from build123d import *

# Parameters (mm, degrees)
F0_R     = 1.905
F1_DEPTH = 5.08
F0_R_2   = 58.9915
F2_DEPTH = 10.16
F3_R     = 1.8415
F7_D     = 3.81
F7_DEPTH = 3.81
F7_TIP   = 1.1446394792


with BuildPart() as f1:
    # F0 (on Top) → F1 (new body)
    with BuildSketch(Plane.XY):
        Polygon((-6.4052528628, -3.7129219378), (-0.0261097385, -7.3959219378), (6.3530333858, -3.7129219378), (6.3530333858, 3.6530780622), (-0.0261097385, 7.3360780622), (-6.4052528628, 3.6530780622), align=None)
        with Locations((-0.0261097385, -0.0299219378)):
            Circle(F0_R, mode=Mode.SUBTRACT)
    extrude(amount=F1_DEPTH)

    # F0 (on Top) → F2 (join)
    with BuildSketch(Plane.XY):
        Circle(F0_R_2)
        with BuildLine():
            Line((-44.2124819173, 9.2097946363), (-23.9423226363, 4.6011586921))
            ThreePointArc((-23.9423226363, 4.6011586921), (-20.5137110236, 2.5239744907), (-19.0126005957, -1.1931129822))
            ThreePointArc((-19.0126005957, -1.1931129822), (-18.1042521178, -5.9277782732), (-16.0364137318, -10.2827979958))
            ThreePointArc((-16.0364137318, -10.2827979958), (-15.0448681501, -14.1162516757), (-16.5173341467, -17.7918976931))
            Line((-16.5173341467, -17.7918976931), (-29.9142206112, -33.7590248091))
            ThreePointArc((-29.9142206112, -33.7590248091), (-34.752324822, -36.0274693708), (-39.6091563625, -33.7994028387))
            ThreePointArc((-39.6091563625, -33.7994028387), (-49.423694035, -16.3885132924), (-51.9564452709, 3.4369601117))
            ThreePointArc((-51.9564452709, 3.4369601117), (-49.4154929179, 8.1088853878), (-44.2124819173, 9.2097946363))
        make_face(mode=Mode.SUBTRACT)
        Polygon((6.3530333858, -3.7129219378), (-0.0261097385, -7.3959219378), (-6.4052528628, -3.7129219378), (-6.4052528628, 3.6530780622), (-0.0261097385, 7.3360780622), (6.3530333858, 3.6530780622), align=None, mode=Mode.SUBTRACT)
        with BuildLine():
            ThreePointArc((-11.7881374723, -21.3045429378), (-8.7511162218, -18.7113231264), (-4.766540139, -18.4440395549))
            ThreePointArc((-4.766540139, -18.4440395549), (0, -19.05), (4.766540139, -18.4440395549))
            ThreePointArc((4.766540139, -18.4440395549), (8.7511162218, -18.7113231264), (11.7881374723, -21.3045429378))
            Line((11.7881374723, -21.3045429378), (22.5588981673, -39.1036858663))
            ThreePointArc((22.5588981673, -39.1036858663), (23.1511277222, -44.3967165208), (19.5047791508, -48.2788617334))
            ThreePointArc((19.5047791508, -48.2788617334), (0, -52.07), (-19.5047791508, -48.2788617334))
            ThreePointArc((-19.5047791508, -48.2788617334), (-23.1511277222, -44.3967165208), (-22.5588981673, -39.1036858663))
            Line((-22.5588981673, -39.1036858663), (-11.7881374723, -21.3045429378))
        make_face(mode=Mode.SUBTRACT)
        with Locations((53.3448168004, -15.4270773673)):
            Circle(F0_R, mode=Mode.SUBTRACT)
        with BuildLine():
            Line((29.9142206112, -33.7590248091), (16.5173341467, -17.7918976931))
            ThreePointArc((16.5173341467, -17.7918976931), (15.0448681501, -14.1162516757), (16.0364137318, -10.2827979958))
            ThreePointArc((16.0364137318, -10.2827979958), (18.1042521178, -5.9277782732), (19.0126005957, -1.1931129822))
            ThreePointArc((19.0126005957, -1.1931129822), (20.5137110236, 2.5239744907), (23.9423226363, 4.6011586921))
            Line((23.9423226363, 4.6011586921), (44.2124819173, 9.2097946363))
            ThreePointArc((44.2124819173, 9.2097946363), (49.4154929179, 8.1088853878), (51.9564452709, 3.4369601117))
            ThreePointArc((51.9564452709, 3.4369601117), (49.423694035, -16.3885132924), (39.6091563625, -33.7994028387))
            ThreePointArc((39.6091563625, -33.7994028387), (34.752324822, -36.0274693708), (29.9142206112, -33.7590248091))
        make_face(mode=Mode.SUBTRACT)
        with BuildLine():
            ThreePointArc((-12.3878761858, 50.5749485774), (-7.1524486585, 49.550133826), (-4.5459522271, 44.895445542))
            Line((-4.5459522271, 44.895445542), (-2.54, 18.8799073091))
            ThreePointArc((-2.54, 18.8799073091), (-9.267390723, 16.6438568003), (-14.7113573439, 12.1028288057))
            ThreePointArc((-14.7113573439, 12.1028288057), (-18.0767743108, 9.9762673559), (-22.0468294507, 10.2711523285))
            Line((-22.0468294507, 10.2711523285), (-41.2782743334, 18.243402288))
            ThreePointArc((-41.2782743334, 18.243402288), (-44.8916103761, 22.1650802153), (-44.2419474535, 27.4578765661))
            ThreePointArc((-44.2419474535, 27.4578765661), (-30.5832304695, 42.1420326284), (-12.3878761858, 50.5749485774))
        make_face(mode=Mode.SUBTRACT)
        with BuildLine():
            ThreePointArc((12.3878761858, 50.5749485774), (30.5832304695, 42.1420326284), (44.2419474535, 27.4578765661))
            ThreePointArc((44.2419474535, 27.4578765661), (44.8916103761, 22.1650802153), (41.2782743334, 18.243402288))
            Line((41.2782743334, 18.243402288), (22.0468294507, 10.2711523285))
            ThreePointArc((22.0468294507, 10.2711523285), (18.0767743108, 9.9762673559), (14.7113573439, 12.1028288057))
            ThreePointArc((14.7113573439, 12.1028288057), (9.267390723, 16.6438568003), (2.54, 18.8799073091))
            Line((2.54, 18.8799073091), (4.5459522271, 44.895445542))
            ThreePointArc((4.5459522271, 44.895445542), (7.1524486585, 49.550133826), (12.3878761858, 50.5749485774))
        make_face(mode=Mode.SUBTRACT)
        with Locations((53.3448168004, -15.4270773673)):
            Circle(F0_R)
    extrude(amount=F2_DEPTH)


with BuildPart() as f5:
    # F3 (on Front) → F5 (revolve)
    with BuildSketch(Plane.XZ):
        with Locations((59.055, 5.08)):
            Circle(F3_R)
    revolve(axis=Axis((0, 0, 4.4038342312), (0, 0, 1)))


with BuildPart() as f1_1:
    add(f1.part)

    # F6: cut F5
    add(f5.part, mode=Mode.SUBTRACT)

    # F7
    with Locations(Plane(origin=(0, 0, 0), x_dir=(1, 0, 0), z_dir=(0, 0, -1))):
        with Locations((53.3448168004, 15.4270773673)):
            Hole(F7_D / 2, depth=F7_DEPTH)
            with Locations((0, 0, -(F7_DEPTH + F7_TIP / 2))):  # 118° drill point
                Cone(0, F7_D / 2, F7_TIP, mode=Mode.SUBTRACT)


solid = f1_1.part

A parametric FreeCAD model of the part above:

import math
import FreeCAD as App
import Part
import Sketcher
Q = App.Units.Quantity


def add_polygon(sketch, points):
    """Adds a closed chain of lines whose ends are joined by coincident constraints."""
    first, n = sketch.GeometryCount, len(points)
    for a, b in zip(points, points[1:] + points[:1]):
        sketch.addGeometry(Part.LineSegment(App.Vector(*a, 0), App.Vector(*b, 0)), False)
    for i in range(n):
        sketch.addConstraint(Sketcher.Constraint("Coincident", first + i, 2, first + (i + 1) % n, 1))

doc = App.newDocument("Part")
body = doc.addObject("PartDesign::Body", "Body")

# Sketch on XY plane
sketch1 = body.newObject("Sketcher::SketchObject", "Sketch")
sketch1.AttachmentSupport = (doc.getObject("XY_Plane"), [""])
sketch1.MapMode = "FlatFace"
add_polygon(sketch1, [(-6.405253, -3.712922), (-0.02611, -7.395922), (6.353033, -3.712922), (6.353033, 3.653078), (-0.02611, 7.336078), (-6.405253, 3.653078)])  # lines 0-5
sketch1.addGeometry(Part.Circle(App.Vector(-0.02611, -0.029922, 0), App.Vector(0, 0, 1), 1.905), False)  # 6
sketch1.addConstraint([
    Sketcher.Constraint("Vertical", 2),
    Sketcher.Constraint("Vertical", 5),
    Sketcher.Constraint("Parallel", 0, 3),
    Sketcher.Constraint("Parallel", 1, 4),
    Sketcher.Constraint("Horizontal", 2, 2, 4, 2),
    Sketcher.Constraint("Horizontal", 1, 2, 5, 2),
    Sketcher.Constraint("Vertical", 6, 3, 0, 2),
    Sketcher.Constraint("Vertical", 0, 2, 3, 2),
    Sketcher.Constraint("Diameter", 6, Q("0.15 in")),
    Sketcher.Constraint("Angle", 0, Q("-30 deg")),
    Sketcher.Constraint("DistanceY", 2, 1, 2, 2, Q("0.29 in")),
    Sketcher.Constraint("Distance", 0, Q("0.29 in")),
    Sketcher.Constraint("DistanceY", 0, 2, 6, 3, Q("0.29 in")),
    Sketcher.Constraint("DistanceX", 6, 3, -1, 1, 0.02611),
    Sketcher.Constraint("DistanceY", 6, 3, -1, 1, 0.029922),
])
pad1 = body.newObject("PartDesign::Pad", "Pad")
pad1.Profile = sketch1
pad1.Length = Q("0.2 in")

# Sketch on XY plane
sketch2 = body.newObject("Sketcher::SketchObject", "Sketch001")
sketch2.AttachmentSupport = (doc.getObject("XY_Plane"), [""])
sketch2.MapMode = "FlatFace"
sketch2.addGeometry(Part.Circle(App.Vector(0, 0, 0), App.Vector(0, 0, 1), 58.9915), False)  # 0
sketch2.addGeometry(Part.LineSegment(App.Vector(-22.558898, -39.103686, 0), App.Vector(-11.788137, -21.304543, 0)), False)  # 1
sketch2.addGeometry(Part.ArcOfCircle(Part.Circle(App.Vector(-6.355387, -24.592053, 0), App.Vector(0, 0, 1), 6.35), math.radians(75.509938), math.radians(148.820691)), False)  # 2
sketch2.addGeometry(Part.ArcOfCircle(Part.Circle(App.Vector(0, 0, 0), App.Vector(0, 0, 1), 19.05), math.radians(-104.490062), math.radians(-75.509938)), False)  # 3
sketch2.addGeometry(Part.ArcOfCircle(Part.Circle(App.Vector(6.355387, -24.592053, 0), App.Vector(0, 0, 1), 6.35), math.radians(31.179309), math.radians(104.490062)), False)  # 4
sketch2.addGeometry(Part.LineSegment(App.Vector(11.788137, -21.304543, 0), App.Vector(22.558898, -39.103686, 0)), False)  # 5
sketch2.addGeometry(Part.ArcOfCircle(Part.Circle(App.Vector(17.126148, -42.391196, 0), App.Vector(0, 0, 1), 6.35), math.radians(-68.00117), math.radians(31.179309)), False)  # 6
sketch2.addGeometry(Part.ArcOfCircle(Part.Circle(App.Vector(0, 0, 0), App.Vector(0, 0, 1), 52.07), math.radians(-111.99883), math.radians(-68.00117)), False)  # 7
sketch2.addGeometry(Part.ArcOfCircle(Part.Circle(App.Vector(-17.126148, -42.391196, 0), App.Vector(0, 0, 1), 6.35), math.radians(148.820691), math.radians(248.00117)), False)  # 8
sketch2.addGeometry(Part.ArcOfCircle(Part.Circle(App.Vector(-45.620293, 3.017819, 0), App.Vector(0, 0, 1), 6.35), math.radians(77.190946), math.radians(176.215353)), False)  # 9
sketch2.addGeometry(Part.LineSegment(App.Vector(-44.212482, 9.209795, 0), App.Vector(-23.942323, 4.601159, 0)), False)  # 10
sketch2.addGeometry(Part.ArcOfCircle(Part.Circle(App.Vector(-25.350134, -1.590817, 0), App.Vector(0, 0, 1), 6.35), math.radians(3.590819), math.radians(77.190946)), False)  # 11
sketch2.addGeometry(Part.ArcOfCircle(Part.Circle(App.Vector(0, 0, 0), App.Vector(0, 0, 1), 19.05), math.radians(-176.409181), math.radians(-147.331376)), False)  # 12
sketch2.addGeometry(Part.ArcOfCircle(Part.Circle(App.Vector(-21.381885, -13.710397, 0), App.Vector(0, 0, 1), 6.35), math.radians(-39.997633), math.radians(32.668624)), False)  # 13
sketch2.addGeometry(Part.LineSegment(App.Vector(-16.517334, -17.791898, 0), App.Vector(-29.914221, -33.759025, 0)), False)  # 14
sketch2.addGeometry(Part.ArcOfCircle(Part.Circle(App.Vector(-34.778771, -29.677524, 0), App.Vector(0, 0, 1), 6.35), math.radians(-139.525112), math.radians(-39.997633)), False)  # 15
sketch2.addGeometry(Part.ArcOfCircle(Part.Circle(App.Vector(0, 0, 0), App.Vector(0, 0, 1), 52.07), math.radians(176.215353), math.radians(220.474888)), False)  # 16
sketch2.addGeometry(Part.ArcOfCircle(Part.Circle(App.Vector(34.778771, -29.677524, 0), App.Vector(0, 0, 1), 6.35), math.radians(-140.002367), math.radians(-40.474888)), False)  # 17
sketch2.addGeometry(Part.LineSegment(App.Vector(29.914221, -33.759025, 0), App.Vector(16.517334, -17.791898, 0)), False)  # 18
sketch2.addGeometry(Part.ArcOfCircle(Part.Circle(App.Vector(21.381885, -13.710397, 0), App.Vector(0, 0, 1), 6.35), math.radians(147.331376), math.radians(219.997633)), False)  # 19
sketch2.addGeometry(Part.ArcOfCircle(Part.Circle(App.Vector(0, 0, 0), App.Vector(0, 0, 1), 19.05), math.radians(-32.668624), math.radians(-3.590819)), False)  # 20
sketch2.addGeometry(Part.ArcOfCircle(Part.Circle(App.Vector(25.350134, -1.590817, 0), App.Vector(0, 0, 1), 6.35), math.radians(102.809054), math.radians(176.409181)), False)  # 21
sketch2.addGeometry(Part.LineSegment(App.Vector(23.942323, 4.601159, 0), App.Vector(44.212482, 9.209795, 0)), False)  # 22
sketch2.addGeometry(Part.ArcOfCircle(Part.Circle(App.Vector(45.620293, 3.017819, 0), App.Vector(0, 0, 1), 6.35), math.radians(3.784647), math.radians(102.809054)), False)  # 23
sketch2.addGeometry(Part.ArcOfCircle(Part.Circle(App.Vector(0, 0, 0), App.Vector(0, 0, 1), 52.07), math.radians(-40.474888), math.radians(3.784647)), False)  # 24
add_polygon(sketch2, [(6.353033, 3.653078), (6.353033, -3.712922), (-0.02611, -7.395922), (-6.405253, -3.712922), (-6.405253, 3.653078), (-0.02611, 7.336078)])  # lines 25-30
sketch2.addGeometry(Part.ArcOfCircle(Part.Circle(App.Vector(0, 0, 0), App.Vector(0, 0, 1), 52.07), math.radians(103.763109), math.radians(148.175024)), False)  # 31
sketch2.addGeometry(Part.ArcOfCircle(Part.Circle(App.Vector(-10.87716, 44.407272, 0), App.Vector(0, 0, 1), 6.35), math.radians(4.40912), math.radians(103.763109)), False)  # 32
sketch2.addGeometry(Part.LineSegment(App.Vector(-4.545952, 44.895446, 0), App.Vector(-2.54, 18.879907, 0)), False)  # 33
sketch2.addGeometry(Part.ArcOfCircle(Part.Circle(App.Vector(0, 0, 0), App.Vector(0, 0, 1), 19.05), math.radians(97.662256), math.radians(140.556345)), False)  # 34
sketch2.addGeometry(Part.ArcOfCircle(Part.Circle(App.Vector(-19.615143, 16.137105, 0), App.Vector(0, 0, 1), 6.35), math.radians(-112.516082), math.radians(-39.443655)), False)  # 35
sketch2.addGeometry(Part.LineSegment(App.Vector(-22.046829, 10.271152, 0), App.Vector(-41.278274, 18.243402, 0)), False)  # 36
sketch2.addGeometry(Part.ArcOfCircle(Part.Circle(App.Vector(-38.846588, 24.109355, 0), App.Vector(0, 0, 1), 6.35), math.radians(148.175024), math.radians(247.483918)), False)  # 37
sketch2.addGeometry(Part.ArcOfCircle(Part.Circle(App.Vector(10.87716, 44.407272, 0), App.Vector(0, 0, 1), 6.35), math.radians(76.236891), math.radians(175.59088)), False)  # 38
sketch2.addGeometry(Part.ArcOfCircle(Part.Circle(App.Vector(0, 0, 0), App.Vector(0, 0, 1), 52.07), math.radians(31.824976), math.radians(76.236891)), False)  # 39
sketch2.addGeometry(Part.ArcOfCircle(Part.Circle(App.Vector(38.846588, 24.109355, 0), App.Vector(0, 0, 1), 6.35), math.radians(-67.483918), math.radians(31.824976)), False)  # 40
sketch2.addGeometry(Part.LineSegment(App.Vector(41.278274, 18.243402, 0), App.Vector(22.046829, 10.271152, 0)), False)  # 41
sketch2.addGeometry(Part.ArcOfCircle(Part.Circle(App.Vector(19.615143, 16.137105, 0), App.Vector(0, 0, 1), 6.35), math.radians(-140.556345), math.radians(-67.483918)), False)  # 42
sketch2.addGeometry(Part.ArcOfCircle(Part.Circle(App.Vector(0, 0, 0), App.Vector(0, 0, 1), 19.05), math.radians(39.443655), math.radians(82.337744)), False)  # 43
sketch2.addGeometry(Part.LineSegment(App.Vector(2.54, 18.879907, 0), App.Vector(4.545952, 44.895446, 0)), False)  # 44
sketch2.addConstraint([
    Sketcher.Constraint("Tangent", 1, 2, 2, 2),
    Sketcher.Constraint("Tangent", 2, 1, 3, 1),
    Sketcher.Constraint("Tangent", 3, 2, 4, 2),
    Sketcher.Constraint("Tangent", 4, 1, 5, 1),
    Sketcher.Constraint("Tangent", 5, 2, 6, 2),
    Sketcher.Constraint("Tangent", 6, 1, 7, 2),
    Sketcher.Constraint("Tangent", 7, 1, 8, 2),
    Sketcher.Constraint("Tangent", 8, 1, 1, 1),
    Sketcher.Constraint("Tangent", 9, 1, 10, 1),
    Sketcher.Constraint("Tangent", 10, 2, 11, 2),
    Sketcher.Constraint("Tangent", 11, 1, 12, 1),
    Sketcher.Constraint("Tangent", 12, 2, 13, 2),
    Sketcher.Constraint("Tangent", 13, 1, 14, 1),
    Sketcher.Constraint("Tangent", 14, 2, 15, 2),
    Sketcher.Constraint("Tangent", 15, 1, 16, 2),
    Sketcher.Constraint("Tangent", 16, 1, 9, 2),
    Sketcher.Constraint("Tangent", 17, 1, 18, 1),
    Sketcher.Constraint("Tangent", 18, 2, 19, 2),
    Sketcher.Constraint("Tangent", 19, 1, 20, 1),
    Sketcher.Constraint("Tangent", 20, 2, 21, 2),
    Sketcher.Constraint("Tangent", 21, 1, 22, 1),
    Sketcher.Constraint("Tangent", 22, 2, 23, 2),
    Sketcher.Constraint("Tangent", 23, 1, 24, 2),
    Sketcher.Constraint("Tangent", 24, 1, 17, 2),
    Sketcher.Constraint("Tangent", 31, 1, 32, 2),
    Sketcher.Constraint("Tangent", 32, 1, 33, 1),
    Sketcher.Constraint("Coincident", 33, 2, 34, 1),
    Sketcher.Constraint("Tangent", 34, 2, 35, 2),
    Sketcher.Constraint("Tangent", 35, 1, 36, 1),
    Sketcher.Constraint("Tangent", 36, 2, 37, 2),
    Sketcher.Constraint("Tangent", 37, 1, 31, 2),
    Sketcher.Constraint("Tangent", 38, 1, 39, 2),
    Sketcher.Constraint("Tangent", 39, 1, 40, 2),
    Sketcher.Constraint("Tangent", 40, 1, 41, 1),
    Sketcher.Constraint("Tangent", 41, 2, 42, 2),
    Sketcher.Constraint("Tangent", 42, 1, 43, 1),
    Sketcher.Constraint("Coincident", 43, 2, 44, 1),
    Sketcher.Constraint("Tangent", 44, 2, 38, 2),
    Sketcher.Constraint("Vertical", 25),
    Sketcher.Constraint("Vertical", 28),
    Sketcher.Constraint("Coincident", 0, 3, -1, 1),
    Sketcher.Constraint("Coincident", 3, 3, -1, 1),
    Sketcher.Constraint("Coincident", 7, 3, -1, 1),
    Sketcher.Constraint("Coincident", 12, 3, -1, 1),
    Sketcher.Constraint("Coincident", 16, 3, -1, 1),
    Sketcher.Constraint("Coincident", 20, 3, -1, 1),
    Sketcher.Constraint("Coincident", 24, 3, -1, 1),
    Sketcher.Constraint("Coincident", 31, 3, -1, 1),
    Sketcher.Constraint("Coincident", 34, 3, -1, 1),
    Sketcher.Constraint("Coincident", 39, 3, -1, 1),
    Sketcher.Constraint("Coincident", 43, 3, -1, 1),
    Sketcher.Constraint("Equal", 2, 4),
    Sketcher.Constraint("Equal", 4, 6),
    Sketcher.Constraint("Equal", 6, 8),
    Sketcher.Constraint("Equal", 8, 9),
    Sketcher.Constraint("Equal", 9, 11),
    Sketcher.Constraint("Equal", 3, 12),
    Sketcher.Constraint("Equal", 11, 13),
    Sketcher.Constraint("Equal", 13, 15),
    Sketcher.Constraint("Equal", 7, 16),
    Sketcher.Constraint("Equal", 15, 17),
    Sketcher.Constraint("Equal", 17, 19),
    Sketcher.Constraint("Equal", 12, 20),
    Sketcher.Constraint("Equal", 19, 21),
    Sketcher.Constraint("Equal", 21, 23),
    Sketcher.Constraint("Equal", 16, 24),
    Sketcher.Constraint("Equal", 24, 31),
    Sketcher.Constraint("Equal", 23, 32),
    Sketcher.Constraint("Equal", 20, 34),
    Sketcher.Constraint("Equal", 32, 35),
    Sketcher.Constraint("Equal", 35, 37),
    Sketcher.Constraint("Equal", 37, 38),
    Sketcher.Constraint("Equal", 31, 39),
    Sketcher.Constraint("Equal", 38, 40),
    Sketcher.Constraint("Equal", 40, 42),
    Sketcher.Constraint("Equal", 34, 43),
    Sketcher.Constraint("Symmetric", 1, 2, 4, 1, -2),
    Sketcher.Constraint("Symmetric", 14, 2, 17, 1, -2),
    Sketcher.Constraint("Symmetric", 10, 2, 21, 1, -2),
    Sketcher.Constraint("Symmetric", 36, 2, 40, 1, -2),
    Sketcher.Constraint("Symmetric", 32, 1, 44, 2, -2),
    Sketcher.Constraint("Parallel", 26, 29),
    Sketcher.Constraint("Parallel", 27, 30),
    Sketcher.Constraint("Horizontal", 25, 2, 27, 2),
    Sketcher.Constraint("Horizontal", 28, 2, 30, 2),
    Sketcher.Constraint("Vertical", 26, 2, 29, 2),
    Sketcher.Constraint("Radius", 2, Q("0.25 in")),
    Sketcher.Constraint("Radius", 3, Q("0.75 in")),
    Sketcher.Constraint("Radius", 7, Q("2.05 in")),
    Sketcher.Constraint("Diameter", 0, Q("4.645 in")),
    Sketcher.Constraint("Angle", 26, Q("-150 deg")),
    Sketcher.Constraint("DistanceY", 25, 2, 25, 1, Q("0.29 in")),
    Sketcher.Constraint("DistanceX", 33, 2, -1, 1, Q("0.1 in")),
    Sketcher.Constraint("Distance", 26, Q("0.29 in")),
    Sketcher.Constraint("DistanceX", 1, 2, -1, 1, Q("0.4640999 in")),
    Sketcher.Constraint("DistanceX", -1, 1, 5, 2, 22.558898),
    Sketcher.Constraint("DistanceX", 11, 1, -1, 1, 19.012601),
    Sketcher.Constraint("Distance", 10, 20.787469),
    Sketcher.Constraint("Distance", 14, 20.842882),
    Sketcher.Constraint("Distance", 33, 26.092759),
    Sketcher.Constraint("DistanceX", 15, 3, -1, 1, 34.778771),
    Sketcher.Constraint("DistanceX", 37, 3, -1, 1, 38.846588),
    Sketcher.Constraint("DistanceY", 25, 2, -1, 1, 3.712922),
    Sketcher.Constraint("DistanceX", 26, 2, -1, 1, 0.02611),
    Sketcher.Constraint("DistanceY", -1, 1, 34, 2, 12.102829),
])
pad2 = body.newObject("PartDesign::Pad", "Pad001")
pad2.Profile = sketch2
pad2.Length = Q("0.4 in")
body2 = doc.addObject("PartDesign::Body", "Body001")

# Sketch on XZ plane
sketch3 = body2.newObject("Sketcher::SketchObject", "Sketch002")
sketch3.AttachmentSupport = (doc.getObject("XZ_Plane001"), [""])
sketch3.MapMode = "FlatFace"
sketch3.addGeometry(Part.Circle(App.Vector(59.055, 5.08, 0), App.Vector(0, 0, 1), 1.8415), False)
sketch3.addConstraint([
    Sketcher.Constraint("Diameter", 0, Q("0.145 in")),
    Sketcher.Constraint("DistanceY", -1, 1, 0, 3, Q("0.2 in")),
    Sketcher.Constraint("DistanceX", -1, 1, 0, 3, Q("2.325 in")),
])
revolution = body2.newObject("PartDesign::Revolution", "Revolution")
revolution.Profile = sketch3
revolution.ReferenceAxis = (sketch3, ["V_Axis"])
revolution.Angle = 360
doc.recompute()

boolean = body.newObject("PartDesign::Boolean", "Boolean")
boolean.Type = "Cut"
boolean.addObjects([body2])

# Sketch on XY plane
sketch4 = body.newObject("Sketcher::SketchObject", "Sketch003")
sketch4.AttachmentSupport = (doc.getObject("XY_Plane"), [""])
sketch4.MapMode = "FlatFace"
sketch4.addGeometry(Part.Circle(App.Vector(53.344817, -15.427077, 0), App.Vector(0, 0, 1), 1.905), False)
sketch4.addConstraint([
    Sketcher.Constraint("Diameter", 0, Q("0.15 in")),
    Sketcher.Constraint("DistanceX", -1, 1, 0, 3, 53.344817),
    Sketcher.Constraint("DistanceY", 0, 3, -1, 1, 15.427077),
])
doc.recompute()
hole = body.newObject("PartDesign::Hole", "Hole")
hole.Profile = sketch4
hole.ThreadType = "None"
hole.Diameter = Q("0.15 in")
hole.DepthType = "Dimension"
hole.Depth = Q("0.15 in")
hole.DrillPoint = "Angled"
hole.DrillPointAngle = 118
hole.Reversed = True

doc.recompute()
